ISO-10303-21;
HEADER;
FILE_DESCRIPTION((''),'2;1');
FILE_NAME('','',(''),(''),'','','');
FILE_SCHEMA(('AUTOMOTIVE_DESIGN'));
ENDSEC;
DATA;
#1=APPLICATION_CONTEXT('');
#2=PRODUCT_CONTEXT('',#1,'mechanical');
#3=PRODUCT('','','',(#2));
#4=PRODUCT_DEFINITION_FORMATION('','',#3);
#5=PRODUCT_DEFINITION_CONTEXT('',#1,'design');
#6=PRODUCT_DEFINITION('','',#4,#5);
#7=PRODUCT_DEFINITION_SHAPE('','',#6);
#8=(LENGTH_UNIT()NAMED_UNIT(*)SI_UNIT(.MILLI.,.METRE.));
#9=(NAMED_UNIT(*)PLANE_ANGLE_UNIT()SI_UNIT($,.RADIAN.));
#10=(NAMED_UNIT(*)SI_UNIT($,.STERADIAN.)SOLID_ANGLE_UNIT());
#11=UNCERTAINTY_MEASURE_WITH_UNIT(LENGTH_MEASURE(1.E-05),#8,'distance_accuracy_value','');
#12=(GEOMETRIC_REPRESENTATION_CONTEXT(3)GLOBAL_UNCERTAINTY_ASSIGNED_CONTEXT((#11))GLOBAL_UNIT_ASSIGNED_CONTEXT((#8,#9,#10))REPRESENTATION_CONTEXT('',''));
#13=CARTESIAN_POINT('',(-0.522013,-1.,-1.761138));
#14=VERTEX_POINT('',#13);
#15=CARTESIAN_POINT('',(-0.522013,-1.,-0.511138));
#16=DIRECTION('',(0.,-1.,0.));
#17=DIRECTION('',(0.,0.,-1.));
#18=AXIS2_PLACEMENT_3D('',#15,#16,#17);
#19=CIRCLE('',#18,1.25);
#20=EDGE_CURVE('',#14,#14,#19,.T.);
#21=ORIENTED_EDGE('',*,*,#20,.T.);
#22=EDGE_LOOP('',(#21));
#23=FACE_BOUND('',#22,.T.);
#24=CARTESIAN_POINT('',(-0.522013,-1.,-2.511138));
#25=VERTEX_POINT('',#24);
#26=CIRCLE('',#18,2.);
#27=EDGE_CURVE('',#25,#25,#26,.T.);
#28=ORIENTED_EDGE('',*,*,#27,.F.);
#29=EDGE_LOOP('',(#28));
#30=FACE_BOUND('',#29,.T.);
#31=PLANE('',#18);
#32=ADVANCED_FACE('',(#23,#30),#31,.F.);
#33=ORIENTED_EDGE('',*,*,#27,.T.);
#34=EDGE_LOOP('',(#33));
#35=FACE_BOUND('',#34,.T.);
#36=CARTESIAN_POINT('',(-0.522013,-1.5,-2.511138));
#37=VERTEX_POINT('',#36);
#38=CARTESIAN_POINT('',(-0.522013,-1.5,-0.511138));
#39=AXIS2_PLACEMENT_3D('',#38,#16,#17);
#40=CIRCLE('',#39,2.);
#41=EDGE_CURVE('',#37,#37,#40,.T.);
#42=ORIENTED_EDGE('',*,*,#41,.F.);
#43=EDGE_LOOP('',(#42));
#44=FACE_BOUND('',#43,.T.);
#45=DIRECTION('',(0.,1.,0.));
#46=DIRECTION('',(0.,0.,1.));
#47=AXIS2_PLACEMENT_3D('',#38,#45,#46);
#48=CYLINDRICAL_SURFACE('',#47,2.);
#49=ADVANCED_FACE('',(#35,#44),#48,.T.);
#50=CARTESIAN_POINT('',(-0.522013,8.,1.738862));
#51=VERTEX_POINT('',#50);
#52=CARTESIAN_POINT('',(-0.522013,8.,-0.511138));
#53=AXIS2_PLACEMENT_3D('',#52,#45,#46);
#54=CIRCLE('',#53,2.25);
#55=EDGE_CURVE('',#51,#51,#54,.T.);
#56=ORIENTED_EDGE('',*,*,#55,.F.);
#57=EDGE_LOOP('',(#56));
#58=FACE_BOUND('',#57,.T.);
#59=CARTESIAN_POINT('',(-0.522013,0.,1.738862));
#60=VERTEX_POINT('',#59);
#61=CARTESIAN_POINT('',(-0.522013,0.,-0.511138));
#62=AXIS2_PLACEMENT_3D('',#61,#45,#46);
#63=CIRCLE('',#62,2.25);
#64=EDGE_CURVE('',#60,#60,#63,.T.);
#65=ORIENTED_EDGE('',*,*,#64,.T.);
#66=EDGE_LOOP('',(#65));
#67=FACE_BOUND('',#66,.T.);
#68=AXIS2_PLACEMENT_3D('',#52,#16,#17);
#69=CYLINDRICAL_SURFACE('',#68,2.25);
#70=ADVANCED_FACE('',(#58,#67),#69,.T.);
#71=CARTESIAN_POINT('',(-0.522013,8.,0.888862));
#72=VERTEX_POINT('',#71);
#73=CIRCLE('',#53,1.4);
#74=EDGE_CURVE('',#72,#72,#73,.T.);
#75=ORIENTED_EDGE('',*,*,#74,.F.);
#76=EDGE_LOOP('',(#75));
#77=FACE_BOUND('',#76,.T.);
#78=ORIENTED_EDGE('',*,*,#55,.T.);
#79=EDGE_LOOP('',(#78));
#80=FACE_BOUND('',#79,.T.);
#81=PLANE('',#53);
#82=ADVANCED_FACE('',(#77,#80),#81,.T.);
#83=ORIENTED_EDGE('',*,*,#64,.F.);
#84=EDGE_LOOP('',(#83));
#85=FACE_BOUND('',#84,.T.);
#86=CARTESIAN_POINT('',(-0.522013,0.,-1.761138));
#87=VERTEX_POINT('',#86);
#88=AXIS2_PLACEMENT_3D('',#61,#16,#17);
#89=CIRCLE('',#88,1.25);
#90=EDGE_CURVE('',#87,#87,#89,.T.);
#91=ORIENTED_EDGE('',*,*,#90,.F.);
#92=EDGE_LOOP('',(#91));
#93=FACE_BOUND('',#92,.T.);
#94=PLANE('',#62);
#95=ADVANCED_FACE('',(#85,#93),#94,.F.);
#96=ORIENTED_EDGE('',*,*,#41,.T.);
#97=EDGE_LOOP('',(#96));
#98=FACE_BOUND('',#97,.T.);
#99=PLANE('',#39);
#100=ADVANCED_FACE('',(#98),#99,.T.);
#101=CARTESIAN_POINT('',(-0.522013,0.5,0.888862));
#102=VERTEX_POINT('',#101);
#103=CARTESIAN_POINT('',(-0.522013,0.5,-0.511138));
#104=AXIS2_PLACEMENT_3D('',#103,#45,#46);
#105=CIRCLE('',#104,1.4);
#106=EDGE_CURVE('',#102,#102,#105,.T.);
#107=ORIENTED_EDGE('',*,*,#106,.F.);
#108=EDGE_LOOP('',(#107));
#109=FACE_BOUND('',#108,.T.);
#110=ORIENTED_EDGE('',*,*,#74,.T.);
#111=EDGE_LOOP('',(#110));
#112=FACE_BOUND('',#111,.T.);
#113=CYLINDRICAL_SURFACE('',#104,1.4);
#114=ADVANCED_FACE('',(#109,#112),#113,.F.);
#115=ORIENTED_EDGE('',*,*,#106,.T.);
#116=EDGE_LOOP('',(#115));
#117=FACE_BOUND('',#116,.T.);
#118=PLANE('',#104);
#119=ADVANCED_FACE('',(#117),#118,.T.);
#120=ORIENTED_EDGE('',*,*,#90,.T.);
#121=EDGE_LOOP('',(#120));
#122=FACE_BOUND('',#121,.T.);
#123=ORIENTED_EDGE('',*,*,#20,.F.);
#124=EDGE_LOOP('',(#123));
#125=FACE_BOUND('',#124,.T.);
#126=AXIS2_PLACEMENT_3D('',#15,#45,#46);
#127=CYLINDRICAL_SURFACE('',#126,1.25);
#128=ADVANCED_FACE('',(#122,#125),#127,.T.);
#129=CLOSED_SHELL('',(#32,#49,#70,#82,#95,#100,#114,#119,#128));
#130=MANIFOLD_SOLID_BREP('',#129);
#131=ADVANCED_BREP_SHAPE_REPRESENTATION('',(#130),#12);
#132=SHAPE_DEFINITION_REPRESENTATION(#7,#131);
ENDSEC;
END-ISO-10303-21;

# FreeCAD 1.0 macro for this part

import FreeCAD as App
import Part
import Sketcher

V = App.Vector

doc = App.newDocument("Part")
body = doc.addObject("PartDesign::Body", "Body")

# Sketch on XZ plane
sketch1 = body.newObject("Sketcher::SketchObject", "Sketch")
sketch1.AttachmentSupport = (doc.getObject("XZ_Plane"), [""])
sketch1.MapMode = "FlatFace"
sketch1.addGeometry(Part.Circle(V(-0.5, -0.5, 0), V(0, 0, 1), 2.2), False)
sketch1.addConstraint([
    Sketcher.Constraint("Diameter", 0, 4.5),
    Sketcher.Constraint("DistanceY", 0, 3, -1, 1, 0.511138),
    Sketcher.Constraint("DistanceX", 0, 3, -1, 1, 0.522013),
])
pad1 = body.newObject("PartDesign::Pad", "Pad")
pad1.Profile = sketch1
pad1.Length = 8
pad1.Reversed = True

# Sketch on XZ plane
sketch2 = body.newObject("Sketcher::SketchObject", "Sketch001")
sketch2.AttachmentSupport = (doc.getObject("XZ_Plane"), [""])
sketch2.MapMode = "FlatFace"
sketch2.addGeometry(Part.Circle(V(-0.5, -0.5, 0), V(0, 0, 1), 1.4), False)
sketch2.addConstraint([
    Sketcher.Constraint("Diameter", 0, 2.75),
    Sketcher.Constraint("DistanceY", 0, 3, -1, 1, 0.511138),
    Sketcher.Constraint("DistanceX", 0, 3, -1, 1, 0.522013),
])
pad2 = body.newObject("PartDesign::Pad", "Pad001")
pad2.Profile = sketch2
pad2.Length = 1
pad2.Reversed = True

# Sketch on XZ plane
sketch3 = body.newObject("Sketcher::SketchObject", "Sketch002")
sketch3.AttachmentSupport = (doc.getObject("XZ_Plane"), [""])
sketch3.MapMode = "FlatFace"
sketch3.addGeometry(Part.Circle(V(-0.5, -0.5, 0), V(0, 0, 1), 1.2), False)
sketch3.addConstraint([
    Sketcher.Constraint("Diameter", 0, 2.5),
    Sketcher.Constraint("DistanceY", 0, 3, -1, 1, 0.511138),
    Sketcher.Constraint("DistanceX", 0, 3, -1, 1, 0.522013),
])
pad3 = body.newObject("PartDesign::Pad", "Pad002")
pad3.Profile = sketch3
pad3.Length = 1

# Sketch on XZ plane
sketch4 = body.newObject("Sketcher::SketchObject", "Sketch003")
sketch4.AttachmentSupport = (doc.getObject("XZ_Plane"), [""])
sketch4.MapMode = "FlatFace"
sketch4.AttachmentOffset = App.Placement(V(0, 0, 1), App.Rotation())
sketch4.addGeometry(Part.Circle(V(-0.5, -0.5, 0), V(0, 0, 1), 2), False)
sketch4.addConstraint([
    Sketcher.Constraint("Diameter", 0, 4.0),
    Sketcher.Constraint("DistanceY", 0, 3, -1, 1, 0.511138),
    Sketcher.Constraint("DistanceX", 0, 3, -1, 1, 0.522013),
])
pad4 = body.newObject("PartDesign::Pad", "Pad003")
pad4.Profile = sketch4
pad4.Length = 0.5

# Sketch on XZ plane
sketch5 = body.newObject("Sketcher::SketchObject", "Sketch004")
sketch5.AttachmentSupport = (doc.getObject("XZ_Plane"), [""])
sketch5.MapMode = "FlatFace"
sketch5.AttachmentOffset = App.Placement(V(0, 0, -8), App.Rotation())
sketch5.addGeometry(Part.Circle(V(-0.5, -0.5, 0), V(0, 0, 1), 1.4), False)
sketch5.addConstraint([
    Sketcher.Constraint("Diameter", 0, 2.8),
    Sketcher.Constraint("DistanceY", 0, 3, -1, 1, 0.511138),
    Sketcher.Constraint("DistanceX", 0, 3, -1, 1, 0.522013),
])
pocket1 = body.newObject("PartDesign::Pocket", "Pocket")
pocket1.Profile = sketch5
pocket1.Length = 7.5
pocket1.Reversed = True

doc.recompute()
